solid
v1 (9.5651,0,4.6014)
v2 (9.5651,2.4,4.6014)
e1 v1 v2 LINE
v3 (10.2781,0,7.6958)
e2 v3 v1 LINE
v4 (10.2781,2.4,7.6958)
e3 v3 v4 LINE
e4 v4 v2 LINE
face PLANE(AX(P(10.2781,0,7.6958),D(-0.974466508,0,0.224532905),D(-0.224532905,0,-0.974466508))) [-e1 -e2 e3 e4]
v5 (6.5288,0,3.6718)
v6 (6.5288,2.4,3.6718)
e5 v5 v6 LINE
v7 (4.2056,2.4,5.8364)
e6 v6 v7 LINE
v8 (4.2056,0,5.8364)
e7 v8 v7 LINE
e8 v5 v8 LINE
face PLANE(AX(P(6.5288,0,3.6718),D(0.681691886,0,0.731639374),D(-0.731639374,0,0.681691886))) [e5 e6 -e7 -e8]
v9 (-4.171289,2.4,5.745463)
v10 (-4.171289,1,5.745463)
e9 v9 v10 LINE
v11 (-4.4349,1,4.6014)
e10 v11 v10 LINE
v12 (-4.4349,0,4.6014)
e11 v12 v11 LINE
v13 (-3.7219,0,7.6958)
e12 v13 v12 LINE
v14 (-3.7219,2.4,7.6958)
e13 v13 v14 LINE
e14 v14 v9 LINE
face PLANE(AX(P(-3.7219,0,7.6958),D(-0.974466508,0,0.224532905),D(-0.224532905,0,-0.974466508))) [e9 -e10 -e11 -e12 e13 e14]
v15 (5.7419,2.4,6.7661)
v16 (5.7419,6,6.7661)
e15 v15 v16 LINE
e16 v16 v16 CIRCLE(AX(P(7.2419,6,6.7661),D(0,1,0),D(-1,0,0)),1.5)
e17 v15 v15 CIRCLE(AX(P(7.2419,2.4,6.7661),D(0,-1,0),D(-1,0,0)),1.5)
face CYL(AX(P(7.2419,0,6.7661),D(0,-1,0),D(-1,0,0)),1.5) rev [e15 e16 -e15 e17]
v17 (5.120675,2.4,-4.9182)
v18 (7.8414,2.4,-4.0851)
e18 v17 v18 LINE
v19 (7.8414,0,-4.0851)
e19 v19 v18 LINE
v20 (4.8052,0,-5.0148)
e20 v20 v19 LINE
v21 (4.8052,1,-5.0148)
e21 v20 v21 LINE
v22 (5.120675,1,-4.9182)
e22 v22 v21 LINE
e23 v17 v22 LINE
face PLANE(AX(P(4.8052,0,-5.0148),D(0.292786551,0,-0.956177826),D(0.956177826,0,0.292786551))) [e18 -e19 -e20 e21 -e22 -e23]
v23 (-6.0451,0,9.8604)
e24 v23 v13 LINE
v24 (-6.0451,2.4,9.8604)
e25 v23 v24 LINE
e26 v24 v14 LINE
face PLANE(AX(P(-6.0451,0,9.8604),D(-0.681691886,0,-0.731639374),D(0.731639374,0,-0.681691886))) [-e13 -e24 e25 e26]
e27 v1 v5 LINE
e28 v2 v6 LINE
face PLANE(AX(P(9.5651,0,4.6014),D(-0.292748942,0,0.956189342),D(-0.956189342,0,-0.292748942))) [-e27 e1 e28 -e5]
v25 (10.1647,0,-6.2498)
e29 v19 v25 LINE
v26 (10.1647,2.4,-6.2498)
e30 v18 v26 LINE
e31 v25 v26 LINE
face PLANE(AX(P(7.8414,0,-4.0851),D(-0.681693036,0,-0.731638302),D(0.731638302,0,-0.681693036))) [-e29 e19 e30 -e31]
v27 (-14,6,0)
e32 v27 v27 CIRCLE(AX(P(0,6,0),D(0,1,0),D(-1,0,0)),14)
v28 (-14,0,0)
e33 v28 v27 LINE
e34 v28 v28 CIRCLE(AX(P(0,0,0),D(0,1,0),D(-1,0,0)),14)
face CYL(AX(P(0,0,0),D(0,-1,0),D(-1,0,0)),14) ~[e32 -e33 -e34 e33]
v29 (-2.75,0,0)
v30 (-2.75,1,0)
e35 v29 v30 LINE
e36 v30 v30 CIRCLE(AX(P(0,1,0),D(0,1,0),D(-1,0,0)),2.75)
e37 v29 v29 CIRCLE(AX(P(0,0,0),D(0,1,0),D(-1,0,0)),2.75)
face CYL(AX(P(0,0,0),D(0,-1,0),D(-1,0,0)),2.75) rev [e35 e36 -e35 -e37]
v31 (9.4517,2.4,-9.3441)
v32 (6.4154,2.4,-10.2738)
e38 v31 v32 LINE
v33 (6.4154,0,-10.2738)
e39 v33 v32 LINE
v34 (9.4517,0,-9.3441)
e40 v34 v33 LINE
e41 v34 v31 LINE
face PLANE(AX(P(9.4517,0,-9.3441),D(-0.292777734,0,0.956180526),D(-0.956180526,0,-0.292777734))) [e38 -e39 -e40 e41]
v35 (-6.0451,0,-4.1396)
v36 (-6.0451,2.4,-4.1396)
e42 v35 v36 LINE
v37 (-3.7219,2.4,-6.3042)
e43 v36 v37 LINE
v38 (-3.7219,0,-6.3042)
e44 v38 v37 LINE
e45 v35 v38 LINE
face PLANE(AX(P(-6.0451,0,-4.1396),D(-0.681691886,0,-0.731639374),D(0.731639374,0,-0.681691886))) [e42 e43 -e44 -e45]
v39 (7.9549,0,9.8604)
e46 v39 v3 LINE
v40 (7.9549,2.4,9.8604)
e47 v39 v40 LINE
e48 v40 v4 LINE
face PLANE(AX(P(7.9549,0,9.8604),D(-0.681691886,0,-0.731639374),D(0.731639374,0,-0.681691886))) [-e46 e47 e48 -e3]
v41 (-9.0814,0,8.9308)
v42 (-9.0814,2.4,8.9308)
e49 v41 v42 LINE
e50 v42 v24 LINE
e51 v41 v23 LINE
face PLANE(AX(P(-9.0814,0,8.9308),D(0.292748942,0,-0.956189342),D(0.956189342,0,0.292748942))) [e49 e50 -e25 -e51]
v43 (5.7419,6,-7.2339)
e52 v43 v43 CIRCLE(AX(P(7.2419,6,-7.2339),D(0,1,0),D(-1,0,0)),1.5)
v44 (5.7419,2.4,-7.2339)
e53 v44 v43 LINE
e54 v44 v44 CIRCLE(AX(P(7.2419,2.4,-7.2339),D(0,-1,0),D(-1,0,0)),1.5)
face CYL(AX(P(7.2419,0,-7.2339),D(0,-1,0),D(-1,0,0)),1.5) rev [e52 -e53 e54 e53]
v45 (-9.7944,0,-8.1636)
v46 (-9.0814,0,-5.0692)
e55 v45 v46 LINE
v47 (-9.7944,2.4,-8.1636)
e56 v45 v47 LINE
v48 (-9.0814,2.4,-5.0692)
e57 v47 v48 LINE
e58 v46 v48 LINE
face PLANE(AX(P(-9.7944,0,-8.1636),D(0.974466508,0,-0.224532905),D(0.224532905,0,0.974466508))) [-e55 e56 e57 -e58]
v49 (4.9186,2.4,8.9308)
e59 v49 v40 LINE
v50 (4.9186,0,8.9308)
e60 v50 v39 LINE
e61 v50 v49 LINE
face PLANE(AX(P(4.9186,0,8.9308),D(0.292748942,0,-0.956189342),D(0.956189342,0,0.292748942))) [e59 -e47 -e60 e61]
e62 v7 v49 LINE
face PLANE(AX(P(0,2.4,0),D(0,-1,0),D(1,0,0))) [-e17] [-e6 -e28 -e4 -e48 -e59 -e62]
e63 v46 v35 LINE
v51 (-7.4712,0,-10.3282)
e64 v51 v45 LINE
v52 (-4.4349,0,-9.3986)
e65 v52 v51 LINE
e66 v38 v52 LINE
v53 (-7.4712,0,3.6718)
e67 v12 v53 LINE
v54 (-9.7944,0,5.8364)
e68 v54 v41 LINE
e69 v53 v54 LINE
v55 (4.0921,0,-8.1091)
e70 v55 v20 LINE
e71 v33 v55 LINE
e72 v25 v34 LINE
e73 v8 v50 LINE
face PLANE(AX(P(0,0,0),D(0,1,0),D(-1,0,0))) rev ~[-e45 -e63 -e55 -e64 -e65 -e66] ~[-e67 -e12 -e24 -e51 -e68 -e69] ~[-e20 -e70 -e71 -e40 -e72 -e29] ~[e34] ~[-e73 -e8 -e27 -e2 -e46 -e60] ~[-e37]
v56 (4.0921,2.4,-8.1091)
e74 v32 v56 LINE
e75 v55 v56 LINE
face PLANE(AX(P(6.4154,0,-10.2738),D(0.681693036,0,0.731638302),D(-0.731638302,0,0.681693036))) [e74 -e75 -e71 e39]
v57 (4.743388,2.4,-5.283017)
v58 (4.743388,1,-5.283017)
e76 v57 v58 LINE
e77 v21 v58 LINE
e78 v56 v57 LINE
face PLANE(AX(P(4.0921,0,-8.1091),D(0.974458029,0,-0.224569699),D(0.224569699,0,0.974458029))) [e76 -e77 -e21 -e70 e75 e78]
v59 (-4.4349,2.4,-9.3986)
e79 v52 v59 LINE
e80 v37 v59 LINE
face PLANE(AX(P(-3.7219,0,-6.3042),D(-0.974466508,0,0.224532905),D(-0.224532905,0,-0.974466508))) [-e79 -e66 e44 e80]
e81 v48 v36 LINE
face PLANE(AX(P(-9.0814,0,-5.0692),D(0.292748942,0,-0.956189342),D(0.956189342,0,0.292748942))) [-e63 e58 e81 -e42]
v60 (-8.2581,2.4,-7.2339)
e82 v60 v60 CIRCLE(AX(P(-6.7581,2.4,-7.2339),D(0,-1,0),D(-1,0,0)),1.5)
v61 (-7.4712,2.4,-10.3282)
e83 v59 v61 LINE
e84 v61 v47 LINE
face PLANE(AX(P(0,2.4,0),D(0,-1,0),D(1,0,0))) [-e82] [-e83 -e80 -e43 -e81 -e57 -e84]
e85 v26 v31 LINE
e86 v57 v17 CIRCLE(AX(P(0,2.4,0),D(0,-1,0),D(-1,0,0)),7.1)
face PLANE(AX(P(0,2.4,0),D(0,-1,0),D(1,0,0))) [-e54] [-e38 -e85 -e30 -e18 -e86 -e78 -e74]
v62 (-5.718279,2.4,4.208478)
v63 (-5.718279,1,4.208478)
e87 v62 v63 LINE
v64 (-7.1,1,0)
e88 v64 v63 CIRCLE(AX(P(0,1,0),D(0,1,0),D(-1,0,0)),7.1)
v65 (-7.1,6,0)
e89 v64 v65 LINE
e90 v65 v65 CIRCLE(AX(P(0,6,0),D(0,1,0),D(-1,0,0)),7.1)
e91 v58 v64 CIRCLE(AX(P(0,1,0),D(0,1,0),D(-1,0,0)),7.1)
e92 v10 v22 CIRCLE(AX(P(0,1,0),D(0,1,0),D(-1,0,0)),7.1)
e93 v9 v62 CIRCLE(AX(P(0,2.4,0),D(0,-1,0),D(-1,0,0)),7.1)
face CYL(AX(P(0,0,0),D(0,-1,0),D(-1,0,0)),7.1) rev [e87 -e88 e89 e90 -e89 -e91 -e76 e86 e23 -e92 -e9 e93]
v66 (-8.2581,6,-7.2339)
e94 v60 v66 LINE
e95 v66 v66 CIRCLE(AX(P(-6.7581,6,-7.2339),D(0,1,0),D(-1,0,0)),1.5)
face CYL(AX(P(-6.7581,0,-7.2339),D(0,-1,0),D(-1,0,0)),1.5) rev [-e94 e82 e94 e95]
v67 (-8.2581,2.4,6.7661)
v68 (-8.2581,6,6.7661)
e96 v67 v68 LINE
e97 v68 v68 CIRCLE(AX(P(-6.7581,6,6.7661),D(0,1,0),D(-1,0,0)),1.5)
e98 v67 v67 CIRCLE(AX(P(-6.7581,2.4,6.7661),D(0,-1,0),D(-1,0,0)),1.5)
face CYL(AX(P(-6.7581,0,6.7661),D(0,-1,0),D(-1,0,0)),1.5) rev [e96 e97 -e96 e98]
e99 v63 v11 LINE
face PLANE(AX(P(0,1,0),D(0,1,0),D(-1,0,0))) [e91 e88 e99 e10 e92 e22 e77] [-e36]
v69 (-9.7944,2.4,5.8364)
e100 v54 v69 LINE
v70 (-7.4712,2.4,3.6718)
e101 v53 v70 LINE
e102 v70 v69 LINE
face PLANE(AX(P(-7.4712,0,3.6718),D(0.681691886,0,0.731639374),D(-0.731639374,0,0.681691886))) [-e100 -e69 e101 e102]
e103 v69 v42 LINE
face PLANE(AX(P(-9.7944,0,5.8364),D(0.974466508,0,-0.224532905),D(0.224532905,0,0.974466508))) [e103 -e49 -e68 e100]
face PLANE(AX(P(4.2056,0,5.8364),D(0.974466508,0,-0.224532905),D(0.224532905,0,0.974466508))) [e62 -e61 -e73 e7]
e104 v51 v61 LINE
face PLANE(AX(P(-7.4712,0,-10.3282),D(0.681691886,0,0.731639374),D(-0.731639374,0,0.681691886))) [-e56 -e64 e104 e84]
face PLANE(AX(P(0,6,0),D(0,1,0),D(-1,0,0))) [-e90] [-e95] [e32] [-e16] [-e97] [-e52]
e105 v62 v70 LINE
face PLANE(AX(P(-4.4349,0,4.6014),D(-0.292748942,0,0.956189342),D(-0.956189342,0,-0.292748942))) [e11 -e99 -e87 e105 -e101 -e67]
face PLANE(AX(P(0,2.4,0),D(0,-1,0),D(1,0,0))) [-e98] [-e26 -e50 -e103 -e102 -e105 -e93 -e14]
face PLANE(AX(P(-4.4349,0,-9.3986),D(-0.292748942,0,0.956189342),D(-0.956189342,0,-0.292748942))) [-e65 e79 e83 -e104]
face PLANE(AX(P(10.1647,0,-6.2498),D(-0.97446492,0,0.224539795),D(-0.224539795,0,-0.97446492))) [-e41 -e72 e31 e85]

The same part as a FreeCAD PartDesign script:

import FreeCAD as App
import Part
import Sketcher
from FreeCAD import Vector


def add_polygon(sketch, points):
    """Adds a closed chain of lines whose ends are joined by coincident constraints."""
    first, n = sketch.GeometryCount, len(points)
    for a, b in zip(points, points[1:] + points[:1]):
        sketch.addGeometry(Part.LineSegment(App.Vector(*a, 0), App.Vector(*b, 0)), False)
    for i in range(n):
        sketch.addConstraint(Sketcher.Constraint("Coincident", first + i, 2, first + (i + 1) % n, 1))

doc = App.newDocument("Part")
params = doc.addObject("Spreadsheet::Sheet", "Params")
for row, (alias, value) in enumerate([
    ("sketch1_diameter", "28 mm"),
    ("sketch1_diameter2", "14.2 mm"),
    ("sketch1_diameter3", "3 mm"),
    ("pad1_length", "6 mm"),
    ("sketch2_diameter", "14.2 mm"),
    ("sketch2_diameter2", "5.5 mm"),
    ("pad2_length", "1 mm"),
    ("sketch3_diameter", "3 mm"),
    ("pocket1_length", "2.4 mm"),
], start=1):
    params.set(f"A{row}", alias)
    params.set(f"B{row}", "=" + value)
    params.setAlias(f"B{row}", alias)

body = doc.addObject("PartDesign::Body", "Body")

sketch1 = body.newObject("Sketcher::SketchObject", "Sketch")
sketch1.AttachmentSupport = (doc.getObject("XZ_Plane"), [""])
sketch1.MapMode = "FlatFace"
sketch1.addGeometry([
    Part.Circle(Vector(0, 0, 0), Vector(0, 0, 1), 14),
    Part.Circle(Vector(7.2419, -7.2339, 0), Vector(0, 0, 1), 1.5),
    Part.Circle(Vector(-6.7581, -7.2339, 0), Vector(0, 0, 1), 1.5),
    Part.Circle(Vector(7.2419, 6.7661, 0), Vector(0, 0, 1), 1.5),
    Part.Circle(Vector(0, 0, 0), Vector(0, 0, 1), 7.1),
    Part.Circle(Vector(-6.7581, 6.7661, 0), Vector(0, 0, 1), 1.5),
], False)
sketch1.addConstraint([
    Sketcher.Constraint("Coincident", 0, 3, -1, 1),
    Sketcher.Constraint("Coincident", 4, 3, -1, 1),
    Sketcher.Constraint("Equal", 1, 2),
    Sketcher.Constraint("Equal", 2, 3),
    Sketcher.Constraint("Equal", 3, 5),
    Sketcher.Constraint("Horizontal", 1, 3, 2, 3),
    Sketcher.Constraint("Horizontal", 3, 3, 5, 3),
    Sketcher.Constraint("Vertical", 1, 3, 3, 3),
    Sketcher.Constraint("Vertical", 2, 3, 5, 3),
    Sketcher.Constraint("Diameter", 0, 28.0),
    Sketcher.Constraint("Diameter", 4, 14.2),
    Sketcher.Constraint("Diameter", 1, 3.0),
    Sketcher.Constraint("DistanceX", 2, 3, 1, 3, 14.0),
    Sketcher.Constraint("DistanceY", 1, 3, 3, 3, 14.0),
    Sketcher.Constraint("DistanceX", -1, 1, 1, 3, 7.242),
    Sketcher.Constraint("DistanceY", 1, 3, -1, 1, 7.234),
])
sketch1.setExpression("Constraints[9]", "Params.sketch1_diameter")
sketch1.setExpression("Constraints[10]", "Params.sketch1_diameter2")
sketch1.setExpression("Constraints[11]", "Params.sketch1_diameter3")
pad1 = body.newObject("PartDesign::Pad", "Pad")
pad1.Profile = sketch1
pad1.setExpression("Length", "Params.pad1_length")
pad1.Reversed = True

sketch2 = body.newObject("Sketcher::SketchObject", "Sketch001")
sketch2.AttachmentSupport = (doc.getObject("XZ_Plane"), [""])
sketch2.MapMode = "FlatFace"
sketch2.addGeometry([
    Part.Circle(Vector(0, 0, 0), Vector(0, 0, 1), 7.1),
    Part.Circle(Vector(0, 0, 0), Vector(0, 0, 1), 2.75),
], False)
sketch2.addConstraint([
    Sketcher.Constraint("Coincident", 0, 3, -1, 1),
    Sketcher.Constraint("Coincident", 1, 3, -1, 1),
    Sketcher.Constraint("Diameter", 0, 14.2),
    Sketcher.Constraint("Diameter", 1, 5.5),
])
sketch2.setExpression("Constraints[2]", "Params.sketch2_diameter")
sketch2.setExpression("Constraints[3]", "Params.sketch2_diameter2")
pad2 = body.newObject("PartDesign::Pad", "Pad001")
pad2.Profile = sketch2
pad2.setExpression("Length", "Params.pad2_length")
pad2.Reversed = True

sketch3 = body.newObject("Sketcher::SketchObject", "Sketch002")
sketch3.AttachmentSupport = (doc.getObject("XZ_Plane"), [""])
sketch3.MapMode = "FlatFace"
add_polygon(sketch3, [(-6.0451, -4.1396), (-9.0814, -5.0692), (-9.7944, -8.1636), (-7.4712, -10.3282), (-4.4349, -9.3986), (-3.7219, -6.3042)])
sketch3.addGeometry(Part.Circle(Vector(-6.7581, -7.2339, 0), Vector(0, 0, 1), 1.5), False)
add_polygon(sketch3, [(-6.0451, 9.8604), (-9.0814, 8.9308), (-9.7944, 5.8364), (-7.4712, 3.6718), (-4.4349, 4.6014), (-3.7219, 7.6958)])
add_polygon(sketch3, [(7.9549, 9.8604), (4.9186, 8.9308), (4.2056, 5.8364), (6.5288, 3.6718), (9.5651, 4.6014), (10.2781, 7.6958)])
sketch3.addGeometry(Part.Circle(Vector(7.2419, 6.7661, 0), Vector(0, 0, 1), 1.5), False)
add_polygon(sketch3, [(7.8414, -4.0851), (4.8052, -5.0148), (4.0921, -8.1091), (6.4154, -10.2738), (9.4517, -9.3441), (10.1647, -6.2498)])
sketch3.addGeometry(Part.Circle(Vector(7.2419, -7.2339, 0), Vector(0, 0, 1), 1.5), False)
sketch3.addConstraint([
    Sketcher.Constraint("Equal", 6, 19),
    Sketcher.Constraint("Equal", 19, 26),
    Sketcher.Constraint("Parallel", 0, 3),
    Sketcher.Constraint("Parallel", 1, 4),
    Sketcher.Constraint("Parallel", 2, 5),
    Sketcher.Constraint("Parallel", 3, 7),
    Sketcher.Constraint("Parallel", 4, 8),
    Sketcher.Constraint("Parallel", 5, 9),
    Sketcher.Constraint("Parallel", 7, 10),
    Sketcher.Constraint("Parallel", 8, 11),
    Sketcher.Constraint("Parallel", 9, 12),
    Sketcher.Constraint("Parallel", 10, 13),
    Sketcher.Constraint("Parallel", 11, 14),
    Sketcher.Constraint("Parallel", 12, 15),
    Sketcher.Constraint("Parallel", 13, 16),
    Sketcher.Constraint("Parallel", 14, 17),
    Sketcher.Constraint("Parallel", 15, 18),
    Sketcher.Constraint("Parallel", 16, 20),
    Sketcher.Constraint("Parallel", 17, 21),
    Sketcher.Constraint("Parallel", 18, 22),
    Sketcher.Constraint("Parallel", 20, 23),
    Sketcher.Constraint("Parallel", 21, 24),
    Sketcher.Constraint("Parallel", 22, 25),
    Sketcher.Constraint("Horizontal", 6, 3, 26, 3),
    Sketcher.Constraint("Horizontal", 7, 2, 13, 2),
    Sketcher.Constraint("Horizontal", 8, 2, 14, 2),
    Sketcher.Constraint("Horizontal", 9, 2, 15, 2),
    Sketcher.Constraint("Horizontal", 10, 2, 16, 2),
    Sketcher.Constraint("Horizontal", 11, 2, 17, 2),
    Sketcher.Constraint("Vertical", 19, 3, 26, 3),
    Sketcher.Constraint("Vertical", 0, 2, 7, 2),
    Sketcher.Constraint("Vertical", 1, 2, 8, 2),
    Sketcher.Constraint("Vertical", 2, 2, 9, 2),
    Sketcher.Constraint("Vertical", 3, 2, 10, 2),
    Sketcher.Constraint("Vertical", 4, 2, 11, 2),
    Sketcher.Constraint("Equal", 0, 1),
    Sketcher.Constraint("Equal", 1, 2),
    Sketcher.Constraint("Equal", 2, 3),
    Sketcher.Constraint("Equal", 18, 20),
    Sketcher.Constraint("Equal", 20, 21),
    Sketcher.Constraint("Equal", 21, 22),
    Sketcher.Constraint("Equal", 22, 23),
    Sketcher.Constraint("Diameter", 6, 3.0),
    Sketcher.Constraint("DistanceX", 6, 3, 19, 3, 14.0),
    Sketcher.Constraint("DistanceY", 6, 3, 19, 3, 14.0),
    Sketcher.Constraint("DistanceY", 0, 2, 7, 2, 14.0),
    Sketcher.Constraint("DistanceX", 3, 2, 20, 2, 9.24),
    Sketcher.Constraint("DistanceX", 20, 2, 16, 2, 4.76),
    Sketcher.Constraint("DistanceY", 22, 2, 26, 3, 3.04),
    Sketcher.Constraint("DistanceX", 6, 3, -1, 1, 6.758),
    Sketcher.Constraint("DistanceY", 6, 3, -1, 1, 7.234),
    Sketcher.Constraint("DistanceX", 3, 2, -1, 1, 4.435),
    Sketcher.Constraint("DistanceX", 4, 2, -1, 1, 3.722),
    Sketcher.Constraint("DistanceX", 5, 2, -1, 1, 6.045),
    Sketcher.Constraint("DistanceY", 21, 2, -1, 1, 8.109),
    Sketcher.Constraint("DistanceY", 23, 2, -1, 1, 9.344),
    Sketcher.Constraint("DistanceY", 21, 2, 4, 2, 1.805),
])
sketch3.setExpression("Constraints[66]", "Params.sketch3_diameter")
pocket1 = body.newObject("PartDesign::Pocket", "Pocket")
pocket1.Profile = sketch3
pocket1.setExpression("Length", "Params.pocket1_length")

doc.recompute()
